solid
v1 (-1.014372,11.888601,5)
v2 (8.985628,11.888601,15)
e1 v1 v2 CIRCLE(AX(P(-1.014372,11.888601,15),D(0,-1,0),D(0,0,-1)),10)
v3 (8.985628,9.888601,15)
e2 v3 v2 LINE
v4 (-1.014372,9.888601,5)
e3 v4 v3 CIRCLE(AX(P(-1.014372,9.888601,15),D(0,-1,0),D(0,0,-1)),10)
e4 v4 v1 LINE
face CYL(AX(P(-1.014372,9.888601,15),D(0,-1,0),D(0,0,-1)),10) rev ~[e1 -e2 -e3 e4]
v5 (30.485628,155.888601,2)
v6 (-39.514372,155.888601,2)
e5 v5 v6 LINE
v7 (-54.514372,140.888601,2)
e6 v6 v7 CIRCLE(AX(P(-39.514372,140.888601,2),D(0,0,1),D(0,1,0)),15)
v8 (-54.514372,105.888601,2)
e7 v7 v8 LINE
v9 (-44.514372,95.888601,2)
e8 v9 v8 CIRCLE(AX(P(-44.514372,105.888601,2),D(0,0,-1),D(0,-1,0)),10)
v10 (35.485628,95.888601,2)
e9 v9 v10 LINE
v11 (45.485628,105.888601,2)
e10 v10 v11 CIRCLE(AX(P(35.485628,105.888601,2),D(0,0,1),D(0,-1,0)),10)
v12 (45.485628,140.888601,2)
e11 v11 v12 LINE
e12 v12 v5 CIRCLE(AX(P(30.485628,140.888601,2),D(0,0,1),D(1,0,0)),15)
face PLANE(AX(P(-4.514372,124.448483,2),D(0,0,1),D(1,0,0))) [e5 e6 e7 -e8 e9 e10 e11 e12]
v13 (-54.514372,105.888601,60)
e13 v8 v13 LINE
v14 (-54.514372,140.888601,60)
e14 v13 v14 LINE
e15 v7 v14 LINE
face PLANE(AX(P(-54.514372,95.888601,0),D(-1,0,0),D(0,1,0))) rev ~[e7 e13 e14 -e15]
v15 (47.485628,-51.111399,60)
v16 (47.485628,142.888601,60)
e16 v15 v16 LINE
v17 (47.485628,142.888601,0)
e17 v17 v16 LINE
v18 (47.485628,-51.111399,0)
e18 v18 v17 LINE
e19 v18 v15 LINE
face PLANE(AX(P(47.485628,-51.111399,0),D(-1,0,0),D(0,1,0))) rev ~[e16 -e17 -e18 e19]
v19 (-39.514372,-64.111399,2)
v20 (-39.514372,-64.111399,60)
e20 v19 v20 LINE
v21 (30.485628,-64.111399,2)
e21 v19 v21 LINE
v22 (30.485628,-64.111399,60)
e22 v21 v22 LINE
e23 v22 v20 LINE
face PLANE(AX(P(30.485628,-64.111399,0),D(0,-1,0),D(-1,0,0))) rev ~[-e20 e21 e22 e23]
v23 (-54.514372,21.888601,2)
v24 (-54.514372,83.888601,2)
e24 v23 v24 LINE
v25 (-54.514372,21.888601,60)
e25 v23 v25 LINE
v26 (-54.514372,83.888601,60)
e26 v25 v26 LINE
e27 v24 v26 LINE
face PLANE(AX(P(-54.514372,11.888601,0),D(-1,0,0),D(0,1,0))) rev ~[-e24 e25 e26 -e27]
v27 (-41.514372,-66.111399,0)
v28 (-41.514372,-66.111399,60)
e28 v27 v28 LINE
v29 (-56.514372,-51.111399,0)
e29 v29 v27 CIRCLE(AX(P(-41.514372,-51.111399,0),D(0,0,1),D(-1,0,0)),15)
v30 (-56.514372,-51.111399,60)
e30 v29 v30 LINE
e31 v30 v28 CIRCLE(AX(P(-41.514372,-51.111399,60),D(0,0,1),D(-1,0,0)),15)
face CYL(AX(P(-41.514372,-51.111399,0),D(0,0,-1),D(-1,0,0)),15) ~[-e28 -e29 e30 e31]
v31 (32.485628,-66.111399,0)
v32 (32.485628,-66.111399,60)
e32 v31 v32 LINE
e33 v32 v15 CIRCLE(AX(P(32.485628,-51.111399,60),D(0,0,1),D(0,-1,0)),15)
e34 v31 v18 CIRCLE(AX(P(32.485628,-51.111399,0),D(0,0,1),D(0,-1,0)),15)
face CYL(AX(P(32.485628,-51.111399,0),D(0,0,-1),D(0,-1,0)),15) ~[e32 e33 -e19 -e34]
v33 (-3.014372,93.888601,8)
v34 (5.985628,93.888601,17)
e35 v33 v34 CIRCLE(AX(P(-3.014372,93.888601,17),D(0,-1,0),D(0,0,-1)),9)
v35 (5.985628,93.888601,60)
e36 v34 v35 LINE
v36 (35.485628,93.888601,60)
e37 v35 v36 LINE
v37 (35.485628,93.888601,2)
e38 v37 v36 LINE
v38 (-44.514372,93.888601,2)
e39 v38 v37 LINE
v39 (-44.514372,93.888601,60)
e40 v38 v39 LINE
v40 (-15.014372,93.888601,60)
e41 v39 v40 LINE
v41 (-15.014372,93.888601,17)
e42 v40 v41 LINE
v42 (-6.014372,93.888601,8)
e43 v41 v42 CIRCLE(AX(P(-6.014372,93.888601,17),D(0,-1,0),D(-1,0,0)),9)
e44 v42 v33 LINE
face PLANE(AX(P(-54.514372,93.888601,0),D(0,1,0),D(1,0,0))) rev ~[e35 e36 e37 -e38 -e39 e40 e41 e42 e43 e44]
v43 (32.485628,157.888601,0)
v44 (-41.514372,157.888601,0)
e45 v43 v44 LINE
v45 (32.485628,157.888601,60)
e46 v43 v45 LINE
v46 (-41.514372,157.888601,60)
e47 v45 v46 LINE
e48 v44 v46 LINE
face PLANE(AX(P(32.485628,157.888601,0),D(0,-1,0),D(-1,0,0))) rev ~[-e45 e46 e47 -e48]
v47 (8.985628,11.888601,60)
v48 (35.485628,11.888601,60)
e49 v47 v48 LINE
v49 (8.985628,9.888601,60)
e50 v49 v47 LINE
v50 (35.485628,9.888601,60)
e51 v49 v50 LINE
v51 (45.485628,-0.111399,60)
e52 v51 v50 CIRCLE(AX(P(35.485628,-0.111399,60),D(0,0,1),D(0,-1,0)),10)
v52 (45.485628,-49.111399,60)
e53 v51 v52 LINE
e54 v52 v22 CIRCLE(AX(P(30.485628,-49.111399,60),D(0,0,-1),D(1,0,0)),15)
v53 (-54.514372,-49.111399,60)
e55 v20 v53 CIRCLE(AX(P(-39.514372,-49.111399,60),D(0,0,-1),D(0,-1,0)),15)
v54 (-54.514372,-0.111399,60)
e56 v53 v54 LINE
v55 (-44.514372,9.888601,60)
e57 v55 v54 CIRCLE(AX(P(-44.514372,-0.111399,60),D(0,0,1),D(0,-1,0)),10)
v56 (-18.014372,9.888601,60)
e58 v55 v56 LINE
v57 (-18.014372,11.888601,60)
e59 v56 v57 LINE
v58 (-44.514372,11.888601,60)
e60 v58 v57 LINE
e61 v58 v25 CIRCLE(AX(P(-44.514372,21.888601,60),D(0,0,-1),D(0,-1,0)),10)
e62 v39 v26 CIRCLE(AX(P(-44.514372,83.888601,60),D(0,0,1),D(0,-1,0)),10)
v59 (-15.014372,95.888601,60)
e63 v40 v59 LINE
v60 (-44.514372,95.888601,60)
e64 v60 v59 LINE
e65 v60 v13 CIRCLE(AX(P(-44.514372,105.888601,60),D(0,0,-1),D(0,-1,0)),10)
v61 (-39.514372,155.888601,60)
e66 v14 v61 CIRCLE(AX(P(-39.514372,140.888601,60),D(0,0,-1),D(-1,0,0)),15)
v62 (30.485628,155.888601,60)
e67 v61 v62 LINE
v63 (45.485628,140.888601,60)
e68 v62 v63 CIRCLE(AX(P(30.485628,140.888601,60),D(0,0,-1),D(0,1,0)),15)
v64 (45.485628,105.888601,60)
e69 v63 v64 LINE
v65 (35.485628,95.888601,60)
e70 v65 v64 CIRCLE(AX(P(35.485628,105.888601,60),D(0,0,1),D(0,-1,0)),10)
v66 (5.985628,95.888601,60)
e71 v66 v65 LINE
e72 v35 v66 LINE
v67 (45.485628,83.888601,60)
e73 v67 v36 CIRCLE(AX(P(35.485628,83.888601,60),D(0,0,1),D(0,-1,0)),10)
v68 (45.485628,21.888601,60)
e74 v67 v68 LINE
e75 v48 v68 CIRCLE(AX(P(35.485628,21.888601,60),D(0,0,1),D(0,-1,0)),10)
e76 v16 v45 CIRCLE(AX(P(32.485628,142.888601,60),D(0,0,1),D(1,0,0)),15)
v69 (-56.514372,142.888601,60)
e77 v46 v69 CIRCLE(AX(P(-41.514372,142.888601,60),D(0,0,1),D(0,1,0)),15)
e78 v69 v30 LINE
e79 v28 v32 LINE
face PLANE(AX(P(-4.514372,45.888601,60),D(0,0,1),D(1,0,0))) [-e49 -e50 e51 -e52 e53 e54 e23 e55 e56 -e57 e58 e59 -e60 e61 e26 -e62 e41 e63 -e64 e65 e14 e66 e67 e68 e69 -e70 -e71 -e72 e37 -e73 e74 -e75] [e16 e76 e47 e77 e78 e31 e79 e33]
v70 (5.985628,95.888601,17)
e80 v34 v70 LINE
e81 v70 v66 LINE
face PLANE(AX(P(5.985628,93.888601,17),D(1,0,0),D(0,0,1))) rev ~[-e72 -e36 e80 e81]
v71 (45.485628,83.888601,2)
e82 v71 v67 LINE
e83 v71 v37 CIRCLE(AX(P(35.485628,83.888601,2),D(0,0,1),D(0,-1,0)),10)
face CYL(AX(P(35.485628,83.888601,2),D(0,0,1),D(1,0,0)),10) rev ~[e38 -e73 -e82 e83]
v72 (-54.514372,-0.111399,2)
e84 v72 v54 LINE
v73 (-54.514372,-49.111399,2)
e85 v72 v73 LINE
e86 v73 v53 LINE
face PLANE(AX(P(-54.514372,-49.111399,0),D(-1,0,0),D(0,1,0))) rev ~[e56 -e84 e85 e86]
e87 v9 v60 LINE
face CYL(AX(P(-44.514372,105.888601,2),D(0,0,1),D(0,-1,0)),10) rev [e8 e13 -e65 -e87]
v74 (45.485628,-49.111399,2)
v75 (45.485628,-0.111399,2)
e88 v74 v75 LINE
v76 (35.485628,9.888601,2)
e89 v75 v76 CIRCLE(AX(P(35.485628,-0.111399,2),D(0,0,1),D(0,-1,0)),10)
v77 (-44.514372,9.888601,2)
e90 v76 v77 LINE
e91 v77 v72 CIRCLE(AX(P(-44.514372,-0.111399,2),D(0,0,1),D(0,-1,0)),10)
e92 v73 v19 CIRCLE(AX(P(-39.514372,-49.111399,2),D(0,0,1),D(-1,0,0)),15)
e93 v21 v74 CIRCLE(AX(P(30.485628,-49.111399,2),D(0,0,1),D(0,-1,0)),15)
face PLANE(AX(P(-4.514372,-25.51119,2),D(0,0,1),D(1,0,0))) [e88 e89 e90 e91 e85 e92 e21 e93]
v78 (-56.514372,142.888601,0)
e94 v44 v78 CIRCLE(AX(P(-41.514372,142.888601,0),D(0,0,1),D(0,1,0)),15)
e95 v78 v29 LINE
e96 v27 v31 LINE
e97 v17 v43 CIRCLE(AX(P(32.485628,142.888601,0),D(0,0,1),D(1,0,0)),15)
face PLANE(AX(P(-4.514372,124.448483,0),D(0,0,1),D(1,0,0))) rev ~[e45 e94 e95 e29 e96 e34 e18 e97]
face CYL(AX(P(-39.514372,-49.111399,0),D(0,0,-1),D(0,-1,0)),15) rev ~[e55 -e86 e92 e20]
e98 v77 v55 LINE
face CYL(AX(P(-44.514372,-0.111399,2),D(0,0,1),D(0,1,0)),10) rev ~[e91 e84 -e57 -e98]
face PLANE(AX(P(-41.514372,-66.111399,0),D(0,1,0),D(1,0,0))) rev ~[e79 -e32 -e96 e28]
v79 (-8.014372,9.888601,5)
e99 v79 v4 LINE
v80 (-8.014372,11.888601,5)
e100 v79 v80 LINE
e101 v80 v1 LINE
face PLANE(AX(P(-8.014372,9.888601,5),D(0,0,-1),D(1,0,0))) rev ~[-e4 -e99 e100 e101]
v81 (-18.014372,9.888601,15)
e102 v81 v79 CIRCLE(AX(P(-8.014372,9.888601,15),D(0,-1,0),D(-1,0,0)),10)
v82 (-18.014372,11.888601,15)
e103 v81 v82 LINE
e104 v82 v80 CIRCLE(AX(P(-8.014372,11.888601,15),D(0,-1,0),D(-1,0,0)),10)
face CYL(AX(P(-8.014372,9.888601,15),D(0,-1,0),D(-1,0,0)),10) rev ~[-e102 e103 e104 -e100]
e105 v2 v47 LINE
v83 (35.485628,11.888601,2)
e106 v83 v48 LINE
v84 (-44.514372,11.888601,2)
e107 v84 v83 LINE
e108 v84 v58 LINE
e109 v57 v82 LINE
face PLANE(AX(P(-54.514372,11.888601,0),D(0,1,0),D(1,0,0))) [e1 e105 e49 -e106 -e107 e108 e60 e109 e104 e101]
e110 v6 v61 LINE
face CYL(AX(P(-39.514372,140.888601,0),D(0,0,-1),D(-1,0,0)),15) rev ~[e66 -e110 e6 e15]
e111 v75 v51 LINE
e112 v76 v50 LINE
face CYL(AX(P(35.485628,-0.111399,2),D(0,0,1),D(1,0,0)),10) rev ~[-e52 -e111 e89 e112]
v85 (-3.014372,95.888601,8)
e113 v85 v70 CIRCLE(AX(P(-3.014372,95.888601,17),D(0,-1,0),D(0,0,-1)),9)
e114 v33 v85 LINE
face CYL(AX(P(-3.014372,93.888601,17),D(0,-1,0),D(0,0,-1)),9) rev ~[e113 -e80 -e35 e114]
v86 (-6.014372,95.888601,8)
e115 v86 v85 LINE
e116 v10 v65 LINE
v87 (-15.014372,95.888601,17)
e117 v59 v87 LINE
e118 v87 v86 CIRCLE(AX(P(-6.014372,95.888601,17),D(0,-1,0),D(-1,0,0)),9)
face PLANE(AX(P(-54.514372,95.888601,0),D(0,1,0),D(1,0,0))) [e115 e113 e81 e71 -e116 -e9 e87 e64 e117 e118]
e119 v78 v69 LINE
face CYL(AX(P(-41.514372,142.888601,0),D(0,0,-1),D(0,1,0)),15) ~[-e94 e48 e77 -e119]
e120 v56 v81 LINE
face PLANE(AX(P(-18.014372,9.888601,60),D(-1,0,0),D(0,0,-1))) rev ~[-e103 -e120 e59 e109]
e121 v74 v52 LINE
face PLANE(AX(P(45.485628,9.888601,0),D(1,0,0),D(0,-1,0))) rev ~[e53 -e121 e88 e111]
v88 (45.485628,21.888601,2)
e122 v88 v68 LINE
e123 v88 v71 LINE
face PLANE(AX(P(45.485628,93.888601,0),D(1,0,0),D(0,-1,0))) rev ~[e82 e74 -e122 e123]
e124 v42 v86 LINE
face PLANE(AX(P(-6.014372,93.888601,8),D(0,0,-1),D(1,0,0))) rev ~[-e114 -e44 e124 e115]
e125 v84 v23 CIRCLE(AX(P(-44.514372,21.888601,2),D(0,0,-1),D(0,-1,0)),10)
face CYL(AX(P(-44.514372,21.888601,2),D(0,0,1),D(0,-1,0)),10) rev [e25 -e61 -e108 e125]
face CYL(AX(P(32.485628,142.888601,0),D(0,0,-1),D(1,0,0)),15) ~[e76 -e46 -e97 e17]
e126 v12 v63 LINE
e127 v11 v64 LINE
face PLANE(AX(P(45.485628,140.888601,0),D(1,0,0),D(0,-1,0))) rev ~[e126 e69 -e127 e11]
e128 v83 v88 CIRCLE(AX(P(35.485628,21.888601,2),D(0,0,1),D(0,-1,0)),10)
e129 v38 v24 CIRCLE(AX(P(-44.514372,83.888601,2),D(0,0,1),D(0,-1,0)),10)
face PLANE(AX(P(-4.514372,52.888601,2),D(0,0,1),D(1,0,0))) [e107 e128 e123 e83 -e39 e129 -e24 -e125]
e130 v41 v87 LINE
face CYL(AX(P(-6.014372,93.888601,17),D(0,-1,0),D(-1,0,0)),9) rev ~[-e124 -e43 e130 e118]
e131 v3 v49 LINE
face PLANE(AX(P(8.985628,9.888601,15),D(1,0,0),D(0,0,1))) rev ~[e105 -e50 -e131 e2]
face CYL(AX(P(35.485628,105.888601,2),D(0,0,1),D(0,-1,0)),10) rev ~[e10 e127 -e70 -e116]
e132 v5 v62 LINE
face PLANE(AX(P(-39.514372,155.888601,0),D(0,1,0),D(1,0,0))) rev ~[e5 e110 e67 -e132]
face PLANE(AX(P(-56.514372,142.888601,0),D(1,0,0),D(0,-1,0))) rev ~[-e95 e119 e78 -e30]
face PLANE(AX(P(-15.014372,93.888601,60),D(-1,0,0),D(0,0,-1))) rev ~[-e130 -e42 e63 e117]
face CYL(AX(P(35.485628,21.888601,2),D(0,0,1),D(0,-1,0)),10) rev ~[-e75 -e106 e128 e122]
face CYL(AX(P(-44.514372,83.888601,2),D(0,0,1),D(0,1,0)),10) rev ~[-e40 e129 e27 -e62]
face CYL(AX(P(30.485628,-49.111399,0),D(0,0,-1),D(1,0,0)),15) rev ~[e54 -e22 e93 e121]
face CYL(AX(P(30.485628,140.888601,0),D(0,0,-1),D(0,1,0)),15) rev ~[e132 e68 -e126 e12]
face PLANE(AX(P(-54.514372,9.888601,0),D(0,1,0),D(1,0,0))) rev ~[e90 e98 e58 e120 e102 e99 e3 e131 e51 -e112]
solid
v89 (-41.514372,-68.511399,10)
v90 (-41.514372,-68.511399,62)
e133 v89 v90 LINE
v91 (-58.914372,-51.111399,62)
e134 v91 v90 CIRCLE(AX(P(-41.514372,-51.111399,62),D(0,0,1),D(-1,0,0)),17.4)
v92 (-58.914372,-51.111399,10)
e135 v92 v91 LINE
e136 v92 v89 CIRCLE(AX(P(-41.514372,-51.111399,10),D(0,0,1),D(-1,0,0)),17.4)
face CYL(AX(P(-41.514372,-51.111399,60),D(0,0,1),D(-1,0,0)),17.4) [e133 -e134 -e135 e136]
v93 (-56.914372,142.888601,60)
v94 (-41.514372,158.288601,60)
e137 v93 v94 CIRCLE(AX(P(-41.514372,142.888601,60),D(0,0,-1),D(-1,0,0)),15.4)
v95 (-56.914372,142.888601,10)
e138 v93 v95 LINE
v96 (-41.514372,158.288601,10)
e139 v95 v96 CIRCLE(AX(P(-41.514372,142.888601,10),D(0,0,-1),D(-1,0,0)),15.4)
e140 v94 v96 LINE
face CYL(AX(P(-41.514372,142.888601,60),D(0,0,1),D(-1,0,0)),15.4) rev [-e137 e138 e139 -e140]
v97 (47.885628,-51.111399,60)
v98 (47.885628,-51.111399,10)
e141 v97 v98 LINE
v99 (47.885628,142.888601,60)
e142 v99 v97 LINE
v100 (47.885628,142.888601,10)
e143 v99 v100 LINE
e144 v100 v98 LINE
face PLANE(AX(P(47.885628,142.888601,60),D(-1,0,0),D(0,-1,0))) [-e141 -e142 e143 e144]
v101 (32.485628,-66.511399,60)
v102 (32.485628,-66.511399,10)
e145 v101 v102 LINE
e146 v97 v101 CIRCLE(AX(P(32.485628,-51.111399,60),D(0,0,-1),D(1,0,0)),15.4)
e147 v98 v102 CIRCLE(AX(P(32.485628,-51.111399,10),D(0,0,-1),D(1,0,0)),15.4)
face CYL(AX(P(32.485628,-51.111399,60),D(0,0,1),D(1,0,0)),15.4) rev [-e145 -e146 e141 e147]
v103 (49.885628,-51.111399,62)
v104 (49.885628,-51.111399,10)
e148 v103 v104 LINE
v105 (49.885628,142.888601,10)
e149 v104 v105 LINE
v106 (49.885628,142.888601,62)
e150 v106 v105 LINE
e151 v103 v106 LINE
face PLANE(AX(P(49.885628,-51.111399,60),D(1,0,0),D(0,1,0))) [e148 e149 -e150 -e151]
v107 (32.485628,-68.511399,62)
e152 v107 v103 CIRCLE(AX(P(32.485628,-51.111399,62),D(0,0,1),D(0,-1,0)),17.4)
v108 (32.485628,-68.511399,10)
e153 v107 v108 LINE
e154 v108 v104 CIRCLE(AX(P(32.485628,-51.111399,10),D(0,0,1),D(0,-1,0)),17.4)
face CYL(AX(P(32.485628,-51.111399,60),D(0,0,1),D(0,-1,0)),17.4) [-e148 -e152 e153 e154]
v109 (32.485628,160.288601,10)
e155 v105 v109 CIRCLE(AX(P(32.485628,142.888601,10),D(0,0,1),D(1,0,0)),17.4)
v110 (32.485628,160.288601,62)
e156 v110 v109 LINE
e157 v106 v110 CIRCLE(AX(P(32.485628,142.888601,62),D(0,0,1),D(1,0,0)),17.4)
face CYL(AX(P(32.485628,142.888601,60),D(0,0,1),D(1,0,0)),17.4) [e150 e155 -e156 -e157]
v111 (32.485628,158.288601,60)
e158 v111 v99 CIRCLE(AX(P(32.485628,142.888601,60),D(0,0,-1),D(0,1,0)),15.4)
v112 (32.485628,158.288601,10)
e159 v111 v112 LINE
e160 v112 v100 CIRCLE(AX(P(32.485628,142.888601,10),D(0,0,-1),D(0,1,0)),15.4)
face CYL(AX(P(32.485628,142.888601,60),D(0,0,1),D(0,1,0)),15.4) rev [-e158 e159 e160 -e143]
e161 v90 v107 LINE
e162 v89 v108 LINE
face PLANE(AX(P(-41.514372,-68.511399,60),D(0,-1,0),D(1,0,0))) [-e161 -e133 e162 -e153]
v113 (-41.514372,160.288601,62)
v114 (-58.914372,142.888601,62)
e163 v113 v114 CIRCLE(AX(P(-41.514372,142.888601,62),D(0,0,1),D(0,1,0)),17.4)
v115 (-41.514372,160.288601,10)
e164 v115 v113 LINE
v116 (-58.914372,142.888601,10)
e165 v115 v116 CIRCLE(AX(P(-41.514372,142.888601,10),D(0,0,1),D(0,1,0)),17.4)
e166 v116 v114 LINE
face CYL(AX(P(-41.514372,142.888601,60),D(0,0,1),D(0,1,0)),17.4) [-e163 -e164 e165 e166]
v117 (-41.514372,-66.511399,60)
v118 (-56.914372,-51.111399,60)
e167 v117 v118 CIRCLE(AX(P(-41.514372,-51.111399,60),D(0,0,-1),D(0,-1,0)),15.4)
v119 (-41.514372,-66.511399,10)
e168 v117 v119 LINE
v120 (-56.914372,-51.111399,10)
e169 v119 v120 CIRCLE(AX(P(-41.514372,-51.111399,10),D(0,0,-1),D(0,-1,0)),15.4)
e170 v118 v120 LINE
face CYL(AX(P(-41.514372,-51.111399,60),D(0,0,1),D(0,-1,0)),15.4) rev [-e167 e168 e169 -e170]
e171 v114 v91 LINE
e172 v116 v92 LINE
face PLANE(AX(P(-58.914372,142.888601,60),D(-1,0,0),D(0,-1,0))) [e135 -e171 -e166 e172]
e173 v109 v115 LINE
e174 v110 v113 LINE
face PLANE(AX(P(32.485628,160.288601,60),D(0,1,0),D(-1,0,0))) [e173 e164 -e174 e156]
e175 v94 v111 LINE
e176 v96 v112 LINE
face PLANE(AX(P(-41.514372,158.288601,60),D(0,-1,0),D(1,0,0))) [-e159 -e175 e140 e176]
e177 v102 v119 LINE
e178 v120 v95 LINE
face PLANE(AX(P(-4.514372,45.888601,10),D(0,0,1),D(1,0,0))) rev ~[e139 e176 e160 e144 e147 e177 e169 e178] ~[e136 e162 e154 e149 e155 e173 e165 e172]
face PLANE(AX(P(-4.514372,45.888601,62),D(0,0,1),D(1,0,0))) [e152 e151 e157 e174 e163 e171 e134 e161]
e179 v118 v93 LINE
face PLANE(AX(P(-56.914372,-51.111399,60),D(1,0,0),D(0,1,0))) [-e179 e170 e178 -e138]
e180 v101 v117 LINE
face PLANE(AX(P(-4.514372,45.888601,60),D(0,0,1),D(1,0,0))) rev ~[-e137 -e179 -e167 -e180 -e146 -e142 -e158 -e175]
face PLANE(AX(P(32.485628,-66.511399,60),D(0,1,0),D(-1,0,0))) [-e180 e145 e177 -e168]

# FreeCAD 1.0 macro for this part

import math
import FreeCAD as App
import Part
import Sketcher

V = App.Vector


def edges_at(feature, points):
    """Names of the edges that pass closest to the given points."""
    edges = feature.Shape.Edges
    near = lambda p: min(range(len(edges)), key=lambda i: edges[i].distToShape(Part.Vertex(*p))[0])
    return sorted({f"Edge{near(p) + 1}" for p in points})

doc = App.newDocument("Part")
params = doc.addObject("Spreadsheet::Sheet", "Params")
for row, (alias, value) in enumerate([
    ("sketch1_radius", "15 mm"),
    ("sketch1_width", "74 mm"),
    ("sketch1_width2", "100 mm"),
    ("sketch1_height", "194 mm"),
    ("sketch1_height2", "59 mm"),
    ("pad1_length", "60 mm"),
    ("sketch2_radius", "15 mm"),
    ("sketch2_width", "70 mm"),
    ("sketch2_height", "45 mm"),
    ("sketch2_height2", "82 mm"),
    ("sketch2_height3", "59 mm"),
    ("pad2_length", "2 mm"),
    ("sketch3_radius", "10 mm"),
    ("sketch3_width", "27 mm"),
    ("sketch3_height", "45 mm"),
    ("pocket1_length", "2 mm"),
    ("sketch4_radius", "9 mm"),
    ("sketch4_width", "21 mm"),
    ("sketch4_height", "43 mm"),
    ("pocket2_length", "2 mm"),
    ("fillet_radius", "10 mm"),
    ("sketch5_radius", "17.4 mm"),
    ("sketch5_width", "74 mm"),
    ("sketch5_height", "194 mm"),
    ("pad3_length", "2 mm"),
    ("sketch6_radius", "17.4 mm"),
    ("sketch6_radius2", "15.4 mm"),
    ("sketch6_width", "74 mm"),
    ("sketch6_height", "194 mm"),
    ("pad4_length", "50 mm"),
], start=1):
    params.set(f"A{row}", alias)
    params.set(f"B{row}", "=" + value)
    params.setAlias(f"B{row}", alias)

body = doc.addObject("PartDesign::Body", "Body")

# Sketch on XY plane
sketch1 = body.newObject("Sketcher::SketchObject", "Sketch")
sketch1.AttachmentSupport = (doc.getObject("XY_Plane"), [""])
sketch1.MapMode = "FlatFace"
sketch1.addGeometry([
    Part.ArcOfCircle(Part.Circle(V(-41.514372, 142.888601, 0), V(0, 0, 1), 15), math.radians(90), math.radians(180)),  # 0
    Part.LineSegment(V(-56.514372, 142.888601, 0), V(-56.514372, -51.111399, 0)),  # 1
    Part.ArcOfCircle(Part.Circle(V(-41.514372, -51.111399, 0), V(0, 0, 1), 15), math.radians(180), math.radians(270)),  # 2
    Part.LineSegment(V(-41.514372, -66.111399, 0), V(32.485628, -66.111399, 0)),  # 3
    Part.ArcOfCircle(Part.Circle(V(32.485628, -51.111399, 0), V(0, 0, 1), 15), math.radians(-90), math.radians(0)),  # 4
    Part.LineSegment(V(47.485628, -51.111399, 0), V(47.485628, 142.888601, 0)),  # 5
    Part.ArcOfCircle(Part.Circle(V(32.485628, 142.888601, 0), V(0, 0, 1), 15), math.radians(0), math.radians(90)),  # 6
    Part.LineSegment(V(32.485628, 157.888601, 0), V(-41.514372, 157.888601, 0)),  # 7
    Part.LineSegment(V(-54.514372, -49.111399, 0), V(-54.514372, 9.888601, 0)),  # 8
    Part.LineSegment(V(-54.514372, 9.888601, 0), V(45.485628, 9.888601, 0)),  # 9
    Part.LineSegment(V(45.485628, 9.888601, 0), V(45.485628, -49.111399, 0)),  # 10
    Part.ArcOfCircle(Part.Circle(V(30.485628, -49.111399, 0), V(0, 0, 1), 15), math.radians(-90), math.radians(0)),  # 11
    Part.LineSegment(V(30.485628, -64.111399, 0), V(-39.514372, -64.111399, 0)),  # 12
    Part.ArcOfCircle(Part.Circle(V(-39.514372, -49.111399, 0), V(0, 0, 1), 15), math.radians(180), math.radians(270)),  # 13
    Part.LineSegment(V(-54.514372, 11.888601, 0), V(-54.514372, 93.888601, 0)),  # 14
    Part.LineSegment(V(-54.514372, 93.888601, 0), V(45.485628, 93.888601, 0)),  # 15
    Part.LineSegment(V(45.485628, 93.888601, 0), V(45.485628, 11.888601, 0)),  # 16
    Part.LineSegment(V(45.485628, 11.888601, 0), V(-54.514372, 11.888601, 0)),  # 17
    Part.LineSegment(V(-54.514372, 95.888601, 0), V(-54.514372, 140.888601, 0)),  # 18
    Part.ArcOfCircle(Part.Circle(V(-39.514372, 140.888601, 0), V(0, 0, 1), 15), math.radians(90), math.radians(180)),  # 19
    Part.LineSegment(V(-39.514372, 155.888601, 0), V(30.485628, 155.888601, 0)),  # 20
    Part.ArcOfCircle(Part.Circle(V(30.485628, 140.888601, 0), V(0, 0, 1), 15), math.radians(0), math.radians(90)),  # 21
    Part.LineSegment(V(45.485628, 140.888601, 0), V(45.485628, 95.888601, 0)),  # 22
    Part.LineSegment(V(45.485628, 95.888601, 0), V(-54.514372, 95.888601, 0)),  # 23
], False)
sketch1.addConstraint([
    Sketcher.Constraint("Tangent", 0, 2, 1, 1),
    Sketcher.Constraint("Tangent", 1, 2, 2, 1),
    Sketcher.Constraint("Tangent", 2, 2, 3, 1),
    Sketcher.Constraint("Tangent", 3, 2, 4, 1),
    Sketcher.Constraint("Tangent", 4, 2, 5, 1),
    Sketcher.Constraint("Tangent", 5, 2, 6, 1),
    Sketcher.Constraint("Tangent", 6, 2, 7, 1),
    Sketcher.Constraint("Tangent", 7, 2, 0, 1),
    Sketcher.Constraint("Coincident", 8, 2, 9, 1),
    Sketcher.Constraint("Coincident", 9, 2, 10, 1),
    Sketcher.Constraint("Tangent", 10, 2, 11, 2),
    Sketcher.Constraint("Tangent", 11, 1, 12, 1),
    Sketcher.Constraint("Tangent", 12, 2, 13, 2),
    Sketcher.Constraint("Tangent", 13, 1, 8, 1),
    Sketcher.Constraint("Coincident", 14, 2, 15, 1),
    Sketcher.Constraint("Coincident", 15, 2, 16, 1),
    Sketcher.Constraint("Coincident", 16, 2, 17, 1),
    Sketcher.Constraint("Coincident", 17, 2, 14, 1),
    Sketcher.Constraint("Tangent", 18, 2, 19, 2),
    Sketcher.Constraint("Tangent", 19, 1, 20, 1),
    Sketcher.Constraint("Tangent", 20, 2, 21, 2),
    Sketcher.Constraint("Tangent", 21, 1, 22, 1),
    Sketcher.Constraint("Coincident", 22, 2, 23, 1),
    Sketcher.Constraint("Coincident", 23, 2, 18, 1),
    Sketcher.Constraint("Vertical", 1),
    Sketcher.Constraint("Horizontal", 3),
    Sketcher.Constraint("Vertical", 5),
    Sketcher.Constraint("Horizontal", 7),
    Sketcher.Constraint("Vertical", 8),
    Sketcher.Constraint("Horizontal", 9),
    Sketcher.Constraint("Vertical", 10),
    Sketcher.Constraint("Horizontal", 12),
    Sketcher.Constraint("Vertical", 14),
    Sketcher.Constraint("Horizontal", 15),
    Sketcher.Constraint("Vertical", 16),
    Sketcher.Constraint("Horizontal", 17),
    Sketcher.Constraint("Vertical", 18),
    Sketcher.Constraint("Horizontal", 20),
    Sketcher.Constraint("Vertical", 22),
    Sketcher.Constraint("Horizontal", 23),
    Sketcher.Constraint("Equal", 0, 2),
    Sketcher.Constraint("Equal", 2, 4),
    Sketcher.Constraint("Equal", 4, 6),
    Sketcher.Constraint("Equal", 6, 11),
    Sketcher.Constraint("Equal", 11, 13),
    Sketcher.Constraint("Equal", 13, 19),
    Sketcher.Constraint("Equal", 19, 21),
    Sketcher.Constraint("Vertical", 13, 3, 19, 3),
    Sketcher.Constraint("Vertical", 11, 3, 21, 3),
    Sketcher.Constraint("Vertical", 13, 1, 14, 2),
    Sketcher.Constraint("Vertical", 10, 2, 15, 2),
    Sketcher.Constraint("Radius", 0, 15.0),
    Sketcher.Constraint("DistanceX", 3, 1, 3, 2, 74.0),
    Sketcher.Constraint("DistanceX", 9, 1, 9, 2, 100.0),
    Sketcher.Constraint("DistanceY", 1, 2, 1, 1, 194.0),
    Sketcher.Constraint("DistanceY", 8, 1, 8, 2, 59.0),
    Sketcher.Constraint("DistanceY", 14, 1, 14, 2, 82.0),
    Sketcher.Constraint("DistanceY", 18, 1, 18, 2, 45.0),
    Sketcher.Constraint("DistanceX", 11, 3, 4, 3, 2.0),
    Sketcher.Constraint("DistanceY", 4, 3, 11, 3, 2.0),
    Sketcher.Constraint("DistanceY", 19, 3, 0, 3, 2.0),
    Sketcher.Constraint("DistanceY", 14, 2, 0, 2, 49.0),
    Sketcher.Constraint("DistanceY", -1, 1, 0, 3, 142.888601),
    Sketcher.Constraint("DistanceX", 0, 3, -1, 1, 41.514372),
])
sketch1.setExpression("Constraints[51]", "Params.sketch1_radius")
sketch1.setExpression("Constraints[52]", "Params.sketch1_width")
sketch1.setExpression("Constraints[53]", "Params.sketch1_width2")
sketch1.setExpression("Constraints[54]", "Params.sketch1_height")
sketch1.setExpression("Constraints[55]", "Params.sketch1_height2")
pad1 = body.newObject("PartDesign::Pad", "Pad")
pad1.Profile = sketch1
pad1.setExpression("Length", "Params.pad1_length")

# Sketch on XY plane
sketch2 = body.newObject("Sketcher::SketchObject", "Sketch001")
sketch2.AttachmentSupport = (doc.getObject("XY_Plane"), [""])
sketch2.MapMode = "FlatFace"
sketch2.addGeometry([
    Part.LineSegment(V(30.485628, 155.888601, 0), V(-39.514372, 155.888601, 0)),  # 0
    Part.ArcOfCircle(Part.Circle(V(-39.514372, 140.888601, 0), V(0, 0, 1), 15), math.radians(90), math.radians(180)),  # 1
    Part.LineSegment(V(-54.514372, 140.888601, 0), V(-54.514372, 95.888601, 0)),  # 2
    Part.LineSegment(V(-54.514372, 95.888601, 0), V(45.485628, 95.888601, 0)),  # 3
    Part.LineSegment(V(45.485628, 95.888601, 0), V(45.485628, 140.888601, 0)),  # 4
    Part.ArcOfCircle(Part.Circle(V(30.485628, 140.888601, 0), V(0, 0, 1), 15), math.radians(0), math.radians(90)),  # 5
    Part.LineSegment(V(-54.514372, 93.888601, 0), V(-54.514372, 11.888601, 0)),  # 6
    Part.LineSegment(V(-54.514372, 11.888601, 0), V(45.485628, 11.888601, 0)),  # 7
    Part.LineSegment(V(45.485628, 11.888601, 0), V(45.485628, 93.888601, 0)),  # 8
    Part.LineSegment(V(45.485628, 93.888601, 0), V(-54.514372, 93.888601, 0)),  # 9
    Part.LineSegment(V(45.485628, 9.888601, 0), V(-54.514372, 9.888601, 0)),  # 10
    Part.LineSegment(V(-54.514372, 9.888601, 0), V(-54.514372, -49.111399, 0)),  # 11
    Part.ArcOfCircle(Part.Circle(V(-39.514372, -49.111399, 0), V(0, 0, 1), 15), math.radians(180), math.radians(270)),  # 12
    Part.LineSegment(V(-39.514372, -64.111399, 0), V(30.485628, -64.111399, 0)),  # 13
    Part.ArcOfCircle(Part.Circle(V(30.485628, -49.111399, 0), V(0, 0, 1), 15), math.radians(-90), math.radians(0)),  # 14
    Part.LineSegment(V(45.485628, -49.111399, 0), V(45.485628, 9.888601, 0)),  # 15
], False)
sketch2.addConstraint([
    Sketcher.Constraint("Tangent", 0, 2, 1, 1),
    Sketcher.Constraint("Tangent", 1, 2, 2, 1),
    Sketcher.Constraint("Coincident", 2, 2, 3, 1),
    Sketcher.Constraint("Coincident", 3, 2, 4, 1),
    Sketcher.Constraint("Tangent", 4, 2, 5, 1),
    Sketcher.Constraint("Tangent", 5, 2, 0, 1),
    Sketcher.Constraint("Coincident", 6, 2, 7, 1),
    Sketcher.Constraint("Coincident", 7, 2, 8, 1),
    Sketcher.Constraint("Coincident", 8, 2, 9, 1),
    Sketcher.Constraint("Coincident", 9, 2, 6, 1),
    Sketcher.Constraint("Coincident", 10, 2, 11, 1),
    Sketcher.Constraint("Tangent", 11, 2, 12, 1),
    Sketcher.Constraint("Tangent", 12, 2, 13, 1),
    Sketcher.Constraint("Tangent", 13, 2, 14, 1),
    Sketcher.Constraint("Tangent", 14, 2, 15, 1),
    Sketcher.Constraint("Coincident", 15, 2, 10, 1),
    Sketcher.Constraint("Horizontal", 0),
    Sketcher.Constraint("Vertical", 2),
    Sketcher.Constraint("Horizontal", 3),
    Sketcher.Constraint("Vertical", 4),
    Sketcher.Constraint("Vertical", 6),
    Sketcher.Constraint("Horizontal", 7),
    Sketcher.Constraint("Vertical", 8),
    Sketcher.Constraint("Horizontal", 9),
    Sketcher.Constraint("Horizontal", 10),
    Sketcher.Constraint("Vertical", 11),
    Sketcher.Constraint("Horizontal", 13),
    Sketcher.Constraint("Vertical", 15),
    Sketcher.Constraint("Equal", 1, 5),
    Sketcher.Constraint("Equal", 5, 12),
    Sketcher.Constraint("Equal", 12, 14),
    Sketcher.Constraint("Vertical", 1, 3, 12, 3),
    Sketcher.Constraint("Vertical", 5, 3, 14, 3),
    Sketcher.Constraint("Vertical", 2, 2, 6, 2),
    Sketcher.Constraint("Vertical", 4, 2, 7, 2),
    Sketcher.Constraint("Radius", 1, 15.0),
    Sketcher.Constraint("DistanceX", 0, 2, 0, 1, 70.0),
    Sketcher.Constraint("DistanceY", 2, 2, 2, 1, 45.0),
    Sketcher.Constraint("DistanceY", 6, 2, 6, 1, 82.0),
    Sketcher.Constraint("DistanceY", 11, 2, 11, 1, 59.0),
    Sketcher.Constraint("DistanceY", 12, 3, 1, 3, 190.0),
    Sketcher.Constraint("DistanceY", 12, 3, 6, 2, 61.0),
    Sketcher.Constraint("DistanceY", -1, 1, 1, 3, 140.888601),
    Sketcher.Constraint("DistanceX", 1, 3, -1, 1, 39.514372),
])
sketch2.setExpression("Constraints[35]", "Params.sketch2_radius")
sketch2.setExpression("Constraints[36]", "Params.sketch2_width")
sketch2.setExpression("Constraints[37]", "Params.sketch2_height")
sketch2.setExpression("Constraints[38]", "Params.sketch2_height2")
sketch2.setExpression("Constraints[39]", "Params.sketch2_height3")
pad2 = body.newObject("PartDesign::Pad", "Pad001")
pad2.Profile = sketch2
pad2.setExpression("Length", "Params.pad2_length")

# Sketch on XZ plane
sketch3 = body.newObject("Sketcher::SketchObject", "Sketch002")
sketch3.AttachmentSupport = (doc.getObject("XZ_Plane"), [""])
sketch3.MapMode = "FlatFace"
sketch3.AttachmentOffset = App.Placement(V(0, 0, -9.888601), App.Rotation())
sketch3.addGeometry([
    Part.LineSegment(V(8.985628, 60, 0), V(-18.014372, 60, 0)),  # 0
    Part.LineSegment(V(-18.014372, 60, 0), V(-18.014372, 15, 0)),  # 1
    Part.ArcOfCircle(Part.Circle(V(-8.014372, 15, 0), V(0, 0, 1), 10), math.radians(180), math.radians(270)),  # 2
    Part.LineSegment(V(-8.014372, 5, 0), V(-1.014372, 5, 0)),  # 3
    Part.ArcOfCircle(Part.Circle(V(-1.014372, 15, 0), V(0, 0, 1), 10), math.radians(-90), math.radians(0)),  # 4
    Part.LineSegment(V(8.985628, 15, 0), V(8.985628, 60, 0)),  # 5
], False)
sketch3.addConstraint([
    Sketcher.Constraint("Coincident", 0, 2, 1, 1),
    Sketcher.Constraint("Tangent", 1, 2, 2, 1),
    Sketcher.Constraint("Tangent", 2, 2, 3, 1),
    Sketcher.Constraint("Tangent", 3, 2, 4, 1),
    Sketcher.Constraint("Tangent", 4, 2, 5, 1),
    Sketcher.Constraint("Coincident", 5, 2, 0, 1),
    Sketcher.Constraint("Horizontal", 0),
    Sketcher.Constraint("Vertical", 1),
    Sketcher.Constraint("Horizontal", 3),
    Sketcher.Constraint("Vertical", 5),
    Sketcher.Constraint("Equal", 2, 4),
    Sketcher.Constraint("Radius", 2, 10.0),
    Sketcher.Constraint("DistanceX", 0, 2, 0, 1, 27.0),
    Sketcher.Constraint("DistanceY", 1, 2, 1, 1, 45.0),
    Sketcher.Constraint("DistanceY", -1, 1, 2, 3, 15.0),
    Sketcher.Constraint("DistanceX", 2, 3, -1, 1, 8.014372),
])
sketch3.setExpression("Constraints[11]", "Params.sketch3_radius")
sketch3.setExpression("Constraints[12]", "Params.sketch3_width")
sketch3.setExpression("Constraints[13]", "Params.sketch3_height")
pocket1 = body.newObject("PartDesign::Pocket", "Pocket")
pocket1.Profile = sketch3
pocket1.setExpression("Length", "Params.pocket1_length")

# Sketch on XZ plane
sketch4 = body.newObject("Sketcher::SketchObject", "Sketch003")
sketch4.AttachmentSupport = (doc.getObject("XZ_Plane"), [""])
sketch4.MapMode = "FlatFace"
sketch4.AttachmentOffset = App.Placement(V(0, 0, -93.888601), App.Rotation())
sketch4.addGeometry([
    Part.LineSegment(V(5.985628, 60, 0), V(-15.014372, 60, 0)),  # 0
    Part.LineSegment(V(-15.014372, 60, 0), V(-15.014372, 17, 0)),  # 1
    Part.ArcOfCircle(Part.Circle(V(-6.014372, 17, 0), V(0, 0, 1), 9), math.radians(180), math.radians(270)),  # 2
    Part.LineSegment(V(-6.014372, 8, 0), V(-3.014372, 8, 0)),  # 3
    Part.ArcOfCircle(Part.Circle(V(-3.014372, 17, 0), V(0, 0, 1), 9), math.radians(-90), math.radians(0)),  # 4
    Part.LineSegment(V(5.985628, 17, 0), V(5.985628, 60, 0)),  # 5
], False)
sketch4.addConstraint([
    Sketcher.Constraint("Coincident", 0, 2, 1, 1),
    Sketcher.Constraint("Tangent", 1, 2, 2, 1),
    Sketcher.Constraint("Tangent", 2, 2, 3, 1),
    Sketcher.Constraint("Tangent", 3, 2, 4, 1),
    Sketcher.Constraint("Tangent", 4, 2, 5, 1),
    Sketcher.Constraint("Coincident", 5, 2, 0, 1),
    Sketcher.Constraint("Horizontal", 0),
    Sketcher.Constraint("Vertical", 1),
    Sketcher.Constraint("Horizontal", 3),
    Sketcher.Constraint("Vertical", 5),
    Sketcher.Constraint("Equal", 2, 4),
    Sketcher.Constraint("Radius", 2, 9.0),
    Sketcher.Constraint("DistanceX", 0, 2, 0, 1, 21.0),
    Sketcher.Constraint("DistanceY", 1, 2, 1, 1, 43.0),
    Sketcher.Constraint("DistanceY", -1, 1, 2, 3, 17.0),
    Sketcher.Constraint("DistanceX", 2, 3, -1, 1, 6.014372),
])
sketch4.setExpression("Constraints[11]", "Params.sketch4_radius")
sketch4.setExpression("Constraints[12]", "Params.sketch4_width")
sketch4.setExpression("Constraints[13]", "Params.sketch4_height")
pocket2 = body.newObject("PartDesign::Pocket", "Pocket001")
pocket2.Profile = sketch4
pocket2.setExpression("Length", "Params.pocket2_length")
doc.recompute()

fillet = body.newObject("PartDesign::Fillet", "Fillet")
fillet.Base = (pocket2, edges_at(pocket2, [
    (-54.514, 9.889, 31),
    (45.486, 9.889, 31),
    (-54.514, 11.889, 31),
    (45.486, 11.889, 31),
    (-54.514, 93.889, 31),
    (45.486, 93.889, 31),
    (45.486, 95.889, 31),
    (-54.514, 95.889, 31),
]))
fillet.setExpression("Radius", "Params.fillet_radius")
body2 = doc.addObject("PartDesign::Body", "Body001")

# Sketch on XY plane
sketch5 = body2.newObject("Sketcher::SketchObject", "Sketch004")
sketch5.AttachmentSupport = (doc.getObject("XY_Plane001"), [""])
sketch5.MapMode = "FlatFace"
sketch5.AttachmentOffset = App.Placement(V(0, 0, 60), App.Rotation())
sketch5.addGeometry([
    Part.LineSegment(V(32.485628, 160.288601, 0), V(-41.514372, 160.288601, 0)),  # 0
    Part.ArcOfCircle(Part.Circle(V(-41.514372, 142.888601, 0), V(0, 0, 1), 17.4), math.radians(90), math.radians(180)),  # 1
    Part.LineSegment(V(-58.914372, 142.888601, 0), V(-58.914372, -51.111399, 0)),  # 2
    Part.ArcOfCircle(Part.Circle(V(-41.514372, -51.111399, 0), V(0, 0, 1), 17.4), math.radians(180), math.radians(270)),  # 3
    Part.LineSegment(V(-41.514372, -68.511399, 0), V(32.485628, -68.511399, 0)),  # 4
    Part.ArcOfCircle(Part.Circle(V(32.485628, -51.111399, 0), V(0, 0, 1), 17.4), math.radians(-90), math.radians(0)),  # 5
    Part.LineSegment(V(49.885628, -51.111399, 0), V(49.885628, 142.888601, 0)),  # 6
    Part.ArcOfCircle(Part.Circle(V(32.485628, 142.888601, 0), V(0, 0, 1), 17.4), math.radians(0), math.radians(90)),  # 7
], False)
sketch5.addConstraint([
    Sketcher.Constraint("Tangent", 0, 2, 1, 1),
    Sketcher.Constraint("Tangent", 1, 2, 2, 1),
    Sketcher.Constraint("Tangent", 2, 2, 3, 1),
    Sketcher.Constraint("Tangent", 3, 2, 4, 1),
    Sketcher.Constraint("Tangent", 4, 2, 5, 1),
    Sketcher.Constraint("Tangent", 5, 2, 6, 1),
    Sketcher.Constraint("Tangent", 6, 2, 7, 1),
    Sketcher.Constraint("Tangent", 7, 2, 0, 1),
    Sketcher.Constraint("Horizontal", 0),
    Sketcher.Constraint("Vertical", 2),
    Sketcher.Constraint("Horizontal", 4),
    Sketcher.Constraint("Vertical", 6),
    Sketcher.Constraint("Equal", 1, 3),
    Sketcher.Constraint("Equal", 3, 5),
    Sketcher.Constraint("Equal", 5, 7),
    Sketcher.Constraint("Radius", 1, 17.4),
    Sketcher.Constraint("DistanceX", 0, 2, 0, 1, 74.0),
    Sketcher.Constraint("DistanceY", 2, 2, 2, 1, 194.0),
    Sketcher.Constraint("DistanceY", -1, 1, 1, 3, 142.888601),
    Sketcher.Constraint("DistanceX", 1, 3, -1, 1, 41.514372),
])
sketch5.setExpression("Constraints[15]", "Params.sketch5_radius")
sketch5.setExpression("Constraints[16]", "Params.sketch5_width")
sketch5.setExpression("Constraints[17]", "Params.sketch5_height")
pad3 = body2.newObject("PartDesign::Pad", "Pad002")
pad3.Profile = sketch5
pad3.setExpression("Length", "Params.pad3_length")

# Sketch on XY plane
sketch6 = body2.newObject("Sketcher::SketchObject", "Sketch005")
sketch6.AttachmentSupport = (doc.getObject("XY_Plane001"), [""])
sketch6.MapMode = "FlatFace"
sketch6.AttachmentOffset = App.Placement(V(0, 0, 60), App.Rotation())
sketch6.addGeometry([
    Part.LineSegment(V(32.485628, 160.288601, 0), V(-41.514372, 160.288601, 0)),  # 0
    Part.ArcOfCircle(Part.Circle(V(-41.514372, 142.888601, 0), V(0, 0, 1), 17.4), math.radians(90), math.radians(180)),  # 1
    Part.LineSegment(V(-58.914372, 142.888601, 0), V(-58.914372, -51.111399, 0)),  # 2
    Part.ArcOfCircle(Part.Circle(V(-41.514372, -51.111399, 0), V(0, 0, 1), 17.4), math.radians(180), math.radians(270)),  # 3
    Part.LineSegment(V(-41.514372, -68.511399, 0), V(32.485628, -68.511399, 0)),  # 4
    Part.ArcOfCircle(Part.Circle(V(32.485628, -51.111399, 0), V(0, 0, 1), 17.4), math.radians(-90), math.radians(0)),  # 5
    Part.LineSegment(V(49.885628, -51.111399, 0), V(49.885628, 142.888601, 0)),  # 6
    Part.ArcOfCircle(Part.Circle(V(32.485628, 142.888601, 0), V(0, 0, 1), 17.4), math.radians(0), math.radians(90)),  # 7
    Part.LineSegment(V(-56.914372, -51.111399, 0), V(-56.914372, 142.888601, 0)),  # 8
    Part.ArcOfCircle(Part.Circle(V(-41.514372, 142.888601, 0), V(0, 0, 1), 15.4), math.radians(90), math.radians(180)),  # 9
    Part.LineSegment(V(-41.514372, 158.288601, 0), V(32.485628, 158.288601, 0)),  # 10
    Part.ArcOfCircle(Part.Circle(V(32.485628, 142.888601, 0), V(0, 0, 1), 15.4), math.radians(0), math.radians(90)),  # 11
    Part.LineSegment(V(47.885628, 142.888601, 0), V(47.885628, -51.111399, 0)),  # 12
    Part.ArcOfCircle(Part.Circle(V(32.485628, -51.111399, 0), V(0, 0, 1), 15.4), math.radians(-90), math.radians(0)),  # 13
    Part.LineSegment(V(32.485628, -66.511399, 0), V(-41.514372, -66.511399, 0)),  # 14
    Part.ArcOfCircle(Part.Circle(V(-41.514372, -51.111399, 0), V(0, 0, 1), 15.4), math.radians(180), math.radians(270)),  # 15
], False)
sketch6.addConstraint([
    Sketcher.Constraint("Tangent", 0, 2, 1, 1),
    Sketcher.Constraint("Tangent", 1, 2, 2, 1),
    Sketcher.Constraint("Tangent", 2, 2, 3, 1),
    Sketcher.Constraint("Tangent", 3, 2, 4, 1),
    Sketcher.Constraint("Tangent", 4, 2, 5, 1),
    Sketcher.Constraint("Tangent", 5, 2, 6, 1),
    Sketcher.Constraint("Tangent", 6, 2, 7, 1),
    Sketcher.Constraint("Tangent", 7, 2, 0, 1),
    Sketcher.Constraint("Tangent", 8, 2, 9, 2),
    Sketcher.Constraint("Tangent", 9, 1, 10, 1),
    Sketcher.Constraint("Tangent", 10, 2, 11, 2),
    Sketcher.Constraint("Tangent", 11, 1, 12, 1),
    Sketcher.Constraint("Tangent", 12, 2, 13, 2),
    Sketcher.Constraint("Tangent", 13, 1, 14, 1),
    Sketcher.Constraint("Tangent", 14, 2, 15, 2),
    Sketcher.Constraint("Tangent", 15, 1, 8, 1),
    Sketcher.Constraint("Horizontal", 0),
    Sketcher.Constraint("Vertical", 2),
    Sketcher.Constraint("Horizontal", 4),
    Sketcher.Constraint("Vertical", 6),
    Sketcher.Constraint("Vertical", 8),
    Sketcher.Constraint("Horizontal", 10),
    Sketcher.Constraint("Vertical", 12),
    Sketcher.Constraint("Horizontal", 14),
    Sketcher.Constraint("Coincident", 9, 3, 1, 3),
    Sketcher.Constraint("Coincident", 11, 3, 7, 3),
    Sketcher.Constraint("Coincident", 13, 3, 5, 3),
    Sketcher.Constraint("Equal", 1, 3),
    Sketcher.Constraint("Equal", 3, 5),
    Sketcher.Constraint("Equal", 5, 7),
    Sketcher.Constraint("Equal", 13, 15),
    Sketcher.Constraint("Radius", 1, 17.4),
    Sketcher.Constraint("Radius", 9, 15.4),
    Sketcher.Constraint("DistanceX", 0, 2, 0, 1, 74.0),
    Sketcher.Constraint("DistanceY", 2, 2, 2, 1, 194.0),
    Sketcher.Constraint("DistanceY", -1, 1, 1, 3, 142.888601),
    Sketcher.Constraint("DistanceX", 1, 3, -1, 1, 41.514372),
])
sketch6.setExpression("Constraints[31]", "Params.sketch6_radius")
sketch6.setExpression("Constraints[32]", "Params.sketch6_radius2")
sketch6.setExpression("Constraints[33]", "Params.sketch6_width")
sketch6.setExpression("Constraints[34]", "Params.sketch6_height")
pad4 = body2.newObject("PartDesign::Pad", "Pad003")
pad4.Profile = sketch6
pad4.setExpression("Length", "Params.pad4_length")
pad4.Reversed = True

doc.recompute()
